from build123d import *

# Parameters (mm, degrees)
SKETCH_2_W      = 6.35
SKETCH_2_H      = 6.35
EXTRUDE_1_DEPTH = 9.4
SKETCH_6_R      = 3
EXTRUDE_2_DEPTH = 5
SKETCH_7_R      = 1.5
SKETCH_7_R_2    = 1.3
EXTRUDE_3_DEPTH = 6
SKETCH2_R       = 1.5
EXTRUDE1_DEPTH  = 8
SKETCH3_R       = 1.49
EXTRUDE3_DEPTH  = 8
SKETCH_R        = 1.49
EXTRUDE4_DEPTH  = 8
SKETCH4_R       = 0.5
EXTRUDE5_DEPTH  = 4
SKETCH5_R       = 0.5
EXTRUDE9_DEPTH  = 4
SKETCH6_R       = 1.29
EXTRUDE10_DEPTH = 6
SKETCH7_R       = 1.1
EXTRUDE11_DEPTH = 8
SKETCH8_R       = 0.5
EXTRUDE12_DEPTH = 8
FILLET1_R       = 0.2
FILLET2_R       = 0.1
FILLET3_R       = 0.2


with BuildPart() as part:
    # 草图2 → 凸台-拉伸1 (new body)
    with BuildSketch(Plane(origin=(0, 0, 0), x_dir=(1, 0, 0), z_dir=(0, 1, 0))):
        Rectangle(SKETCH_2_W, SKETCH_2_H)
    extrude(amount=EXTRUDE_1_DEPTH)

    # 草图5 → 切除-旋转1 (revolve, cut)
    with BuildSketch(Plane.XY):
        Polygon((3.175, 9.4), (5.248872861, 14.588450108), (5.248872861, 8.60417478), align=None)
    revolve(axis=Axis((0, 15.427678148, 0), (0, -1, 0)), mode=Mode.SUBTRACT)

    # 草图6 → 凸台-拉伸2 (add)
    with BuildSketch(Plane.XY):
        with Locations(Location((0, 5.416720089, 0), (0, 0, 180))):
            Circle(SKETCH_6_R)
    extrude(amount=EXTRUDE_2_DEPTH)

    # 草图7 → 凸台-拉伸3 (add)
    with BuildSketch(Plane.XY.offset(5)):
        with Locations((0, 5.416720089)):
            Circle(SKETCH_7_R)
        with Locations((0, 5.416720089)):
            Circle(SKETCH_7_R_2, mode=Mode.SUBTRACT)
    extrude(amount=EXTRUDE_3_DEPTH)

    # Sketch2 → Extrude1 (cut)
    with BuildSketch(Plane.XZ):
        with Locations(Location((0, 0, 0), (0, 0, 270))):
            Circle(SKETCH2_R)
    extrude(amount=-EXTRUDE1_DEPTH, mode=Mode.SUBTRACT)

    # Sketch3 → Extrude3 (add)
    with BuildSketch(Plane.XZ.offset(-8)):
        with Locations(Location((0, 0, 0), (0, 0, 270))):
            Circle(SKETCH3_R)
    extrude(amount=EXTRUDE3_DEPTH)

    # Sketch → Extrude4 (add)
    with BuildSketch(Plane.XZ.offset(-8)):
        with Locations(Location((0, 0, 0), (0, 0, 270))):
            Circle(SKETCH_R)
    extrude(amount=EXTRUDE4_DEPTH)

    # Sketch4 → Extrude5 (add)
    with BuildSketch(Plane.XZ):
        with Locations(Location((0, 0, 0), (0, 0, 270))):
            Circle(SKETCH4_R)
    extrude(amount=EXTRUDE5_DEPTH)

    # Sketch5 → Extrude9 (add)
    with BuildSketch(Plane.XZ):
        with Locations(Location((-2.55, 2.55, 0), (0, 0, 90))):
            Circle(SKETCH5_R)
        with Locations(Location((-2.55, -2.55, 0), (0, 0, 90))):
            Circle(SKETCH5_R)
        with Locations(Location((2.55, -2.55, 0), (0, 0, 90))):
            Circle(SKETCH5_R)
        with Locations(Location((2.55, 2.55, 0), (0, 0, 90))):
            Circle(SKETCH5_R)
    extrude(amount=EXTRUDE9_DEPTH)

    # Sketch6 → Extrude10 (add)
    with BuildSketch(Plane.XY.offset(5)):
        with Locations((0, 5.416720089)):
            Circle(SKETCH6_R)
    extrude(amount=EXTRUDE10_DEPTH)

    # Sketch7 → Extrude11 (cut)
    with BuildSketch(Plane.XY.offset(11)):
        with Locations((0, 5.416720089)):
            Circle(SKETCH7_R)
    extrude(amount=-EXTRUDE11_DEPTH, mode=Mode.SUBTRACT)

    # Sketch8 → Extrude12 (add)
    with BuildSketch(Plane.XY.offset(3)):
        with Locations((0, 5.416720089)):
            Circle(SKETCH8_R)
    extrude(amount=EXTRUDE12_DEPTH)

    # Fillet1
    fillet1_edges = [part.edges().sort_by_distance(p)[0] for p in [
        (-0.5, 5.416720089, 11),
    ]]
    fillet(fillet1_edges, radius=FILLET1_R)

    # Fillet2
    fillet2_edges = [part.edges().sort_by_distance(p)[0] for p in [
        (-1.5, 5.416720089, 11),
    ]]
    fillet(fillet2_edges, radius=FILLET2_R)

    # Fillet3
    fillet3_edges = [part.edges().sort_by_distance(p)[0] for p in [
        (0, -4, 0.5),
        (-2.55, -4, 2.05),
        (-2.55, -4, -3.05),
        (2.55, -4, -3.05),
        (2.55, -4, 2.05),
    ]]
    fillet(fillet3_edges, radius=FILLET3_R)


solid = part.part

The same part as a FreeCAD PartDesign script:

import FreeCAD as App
import Part
import Sketcher

V = App.Vector


def edges_at(feature, points):
    """Names of the edges that pass closest to the given points."""
    edges = feature.Shape.Edges
    near = lambda p: min(range(len(edges)), key=lambda i: edges[i].distToShape(Part.Vertex(*p))[0])
    return sorted({f"Edge{near(p) + 1}" for p in points})

doc = App.newDocument("Part")
body = doc.addObject("PartDesign::Body", "Body")

# Sketch on XZ plane
sketch1 = body.newObject("Sketcher::SketchObject", "Sketch")
sketch1.AttachmentSupport = (doc.getObject("XZ_Plane"), [""])
sketch1.MapMode = "FlatFace"
sketch1.addGeometry([
    Part.LineSegment(V(-3, -3, 0), V(-3, 3, 0)),
    Part.LineSegment(V(-3, 3, 0), V(3, 3, 0)),
    Part.LineSegment(V(3, 3, 0), V(3, -3, 0)),
    Part.LineSegment(V(3, -3, 0), V(-3, -3, 0)),
], False)
sketch1.addConstraint([
    Sketcher.Constraint("Coincident", 0, 2, 1, 1),
    Sketcher.Constraint("Coincident", 1, 2, 2, 1),
    Sketcher.Constraint("Coincident", 2, 2, 3, 1),
    Sketcher.Constraint("Coincident", 3, 2, 0, 1),
    Sketcher.Constraint("Vertical", 0),
    Sketcher.Constraint("Horizontal", 1),
    Sketcher.Constraint("Vertical", 2),
    Sketcher.Constraint("Horizontal", 3),
    Sketcher.Constraint("Symmetric", 0, 2, 2, 2, -1, 1),
    Sketcher.Constraint("Equal", 3, 0),
    Sketcher.Constraint("DistanceX", 1, 1, 1, 2, 6.35),
])
pad1 = body.newObject("PartDesign::Pad", "Pad")
pad1.Profile = sketch1
pad1.Length = 9.4
pad1.Reversed = True

# Sketch on XY plane
sketch2 = body.newObject("Sketcher::SketchObject", "Sketch001")
sketch2.AttachmentSupport = (doc.getObject("XY_Plane"), [""])
sketch2.MapMode = "FlatFace"
sketch2.addGeometry([
    Part.LineSegment(V(5.2, 14.6, 0), V(3.2, 9.4, 0)),
    Part.LineSegment(V(3.2, 9.4, 0), V(5.2, 8.6, 0)),
    Part.LineSegment(V(5.2, 8.6, 0), V(5.2, 14.6, 0)),
], False)
sketch2.addConstraint([
    Sketcher.Constraint("Coincident", 0, 2, 1, 1),
    Sketcher.Constraint("Coincident", 1, 2, 2, 1),
    Sketcher.Constraint("Coincident", 2, 2, 0, 1),
    Sketcher.Constraint("Vertical", 2),
    Sketcher.Constraint("DistanceY", -1, 1, 0, 2, 9.4),
    Sketcher.Constraint("DistanceX", -1, 1, 0, 2, 3.175),
    Sketcher.Constraint("DistanceY", 2, 1, 2, 2, 5.984275),
    Sketcher.Constraint("DistanceY", -1, 1, 2, 2, 14.58845),
    Sketcher.Constraint("Distance", 0, 5.587572),
])
groove = body.newObject("PartDesign::Groove", "Groove")
groove.Profile = sketch2
groove.ReferenceAxis = (sketch2, ["V_Axis"])
groove.Angle = 360

# Sketch on XY plane
sketch3 = body.newObject("Sketcher::SketchObject", "Sketch002")
sketch3.AttachmentSupport = (doc.getObject("XY_Plane"), [""])
sketch3.MapMode = "FlatFace"
sketch3.addGeometry(Part.Circle(V(0, 5.4, 0), V(0, 0, 1), 3), False)
sketch3.addConstraint([
    Sketcher.Constraint("PointOnObject", 0, 3, -2),
    Sketcher.Constraint("Diameter", 0, 6.0),
    Sketcher.Constraint("DistanceY", -1, 1, 0, 3, 5.41672),
])
pad2 = body.newObject("PartDesign::Pad", "Pad001")
pad2.Profile = sketch3
pad2.Length = 5

# Sketch on XY plane
sketch4 = body.newObject("Sketcher::SketchObject", "Sketch003")
sketch4.AttachmentSupport = (doc.getObject("XY_Plane"), [""])
sketch4.MapMode = "FlatFace"
sketch4.AttachmentOffset = App.Placement(V(0, 0, 5), App.Rotation())
sketch4.addGeometry([
    Part.Circle(V(0, 5.4, 0), V(0, 0, 1), 1.5),
    Part.Circle(V(0, 5.4, 0), V(0, 0, 1), 1.3),
], False)
sketch4.addConstraint([
    Sketcher.Constraint("Coincident", 1, 3, 0, 3),
    Sketcher.Constraint("PointOnObject", 0, 3, -2),
    Sketcher.Constraint("Diameter", 0, 3.0),
    Sketcher.Constraint("Diameter", 1, 2.6),
    Sketcher.Constraint("DistanceY", -1, 1, 0, 3, 5.41672),
])
pad3 = body.newObject("PartDesign::Pad", "Pad002")
pad3.Profile = sketch4
pad3.Length = 6

# Sketch on XZ plane
sketch5 = body.newObject("Sketcher::SketchObject", "Sketch004")
sketch5.AttachmentSupport = (doc.getObject("XZ_Plane"), [""])
sketch5.MapMode = "FlatFace"
sketch5.addGeometry(Part.Circle(V(0, 0, 0), V(0, 0, 1), 1.5), False)
sketch5.addConstraint([
    Sketcher.Constraint("Coincident", 0, 3, -1, 1),
    Sketcher.Constraint("Diameter", 0, 3.0),
])
pocket1 = body.newObject("PartDesign::Pocket", "Pocket")
pocket1.Profile = sketch5
pocket1.Length = 8

# Sketch on XZ plane
sketch6 = body.newObject("Sketcher::SketchObject", "Sketch005")
sketch6.AttachmentSupport = (doc.getObject("XZ_Plane"), [""])
sketch6.MapMode = "FlatFace"
sketch6.AttachmentOffset = App.Placement(V(0, 0, -8), App.Rotation())
sketch6.addGeometry(Part.Circle(V(0, 0, 0), V(0, 0, 1), 1.5), False)
sketch6.addConstraint([
    Sketcher.Constraint("Coincident", 0, 3, -1, 1),
    Sketcher.Constraint("Diameter", 0, 2.98),
])
pad4 = body.newObject("PartDesign::Pad", "Pad003")
pad4.Profile = sketch6
pad4.Length = 8

# Sketch on XZ plane
sketch7 = body.newObject("Sketcher::SketchObject", "Sketch006")
sketch7.AttachmentSupport = (doc.getObject("XZ_Plane"), [""])
sketch7.MapMode = "FlatFace"
sketch7.AttachmentOffset = App.Placement(V(0, 0, -8), App.Rotation())
sketch7.addGeometry(Part.Circle(V(0, 0, 0), V(0, 0, 1), 1.5), False)
sketch7.addConstraint([
    Sketcher.Constraint("Coincident", 0, 3, -1, 1),
    Sketcher.Constraint("Diameter", 0, 2.98),
])
pad5 = body.newObject("PartDesign::Pad", "Pad004")
pad5.Profile = sketch7
pad5.Length = 8

# Sketch on XZ plane
sketch8 = body.newObject("Sketcher::SketchObject", "Sketch007")
sketch8.AttachmentSupport = (doc.getObject("XZ_Plane"), [""])
sketch8.MapMode = "FlatFace"
sketch8.addGeometry(Part.Circle(V(0, 0, 0), V(0, 0, 1), 0.5), False)
sketch8.addConstraint([
    Sketcher.Constraint("Coincident", 0, 3, -1, 1),
    Sketcher.Constraint("Diameter", 0, 1.0),
])
pad6 = body.newObject("PartDesign::Pad", "Pad005")
pad6.Profile = sketch8
pad6.Length = 4

# Sketch on XZ plane
sketch9 = body.newObject("Sketcher::SketchObject", "Sketch008")
sketch9.AttachmentSupport = (doc.getObject("XZ_Plane"), [""])
sketch9.MapMode = "FlatFace"
sketch9.addGeometry([
    Part.Circle(V(-2.5, 2.5, 0), V(0, 0, 1), 0.5),
    Part.Circle(V(-2.5, -2.5, 0), V(0, 0, 1), 0.5),
    Part.Circle(V(2.5, -2.5, 0), V(0, 0, 1), 0.5),
    Part.Circle(V(2.5, 2.5, 0), V(0, 0, 1), 0.5),
], False)
sketch9.addConstraint([
    Sketcher.Constraint("Equal", 0, 1),
    Sketcher.Constraint("Equal", 1, 2),
    Sketcher.Constraint("Equal", 2, 3),
    Sketcher.Constraint("Symmetric", 0, 3, 2, 3, -1, 1),
    Sketcher.Constraint("Symmetric", 1, 3, 3, 3, -1, 1),
    Sketcher.Constraint("Symmetric", 1, 3, 2, 3, -2),
    Sketcher.Constraint("Diameter", 0, 1.0),
    Sketcher.Constraint("DistanceY", 1, 3, 0, 3, 5.1),
    Sketcher.Constraint("DistanceX", 1, 3, 2, 3, 5.1),
])
pad7 = body.newObject("PartDesign::Pad", "Pad006")
pad7.Profile = sketch9
pad7.Length = 4

# Sketch on XY plane
sketch10 = body.newObject("Sketcher::SketchObject", "Sketch009")
sketch10.AttachmentSupport = (doc.getObject("XY_Plane"), [""])
sketch10.MapMode = "FlatFace"
sketch10.AttachmentOffset = App.Placement(V(0, 0, 5), App.Rotation())
sketch10.addGeometry(Part.Circle(V(0, 5.4, 0), V(0, 0, 1), 1.3), False)
sketch10.addConstraint([
    Sketcher.Constraint("PointOnObject", 0, 3, -2),
    Sketcher.Constraint("Diameter", 0, 2.58),
    Sketcher.Constraint("DistanceY", -1, 1, 0, 3, 5.41672),
])
pad8 = body.newObject("PartDesign::Pad", "Pad007")
pad8.Profile = sketch10
pad8.Length = 6

# Sketch on XY plane
sketch11 = body.newObject("Sketcher::SketchObject", "Sketch010")
sketch11.AttachmentSupport = (doc.getObject("XY_Plane"), [""])
sketch11.MapMode = "FlatFace"
sketch11.AttachmentOffset = App.Placement(V(0, 0, 11), App.Rotation())
sketch11.addGeometry(Part.Circle(V(0, 5.4, 0), V(0, 0, 1), 1.1), False)
sketch11.addConstraint([
    Sketcher.Constraint("PointOnObject", 0, 3, -2),
    Sketcher.Constraint("Diameter", 0, 2.2),
    Sketcher.Constraint("DistanceY", -1, 1, 0, 3, 5.41672),
])
pocket2 = body.newObject("PartDesign::Pocket", "Pocket001")
pocket2.Profile = sketch11
pocket2.Length = 8

# Sketch on XY plane
sketch12 = body.newObject("Sketcher::SketchObject", "Sketch011")
sketch12.AttachmentSupport = (doc.getObject("XY_Plane"), [""])
sketch12.MapMode = "FlatFace"
sketch12.AttachmentOffset = App.Placement(V(0, 0, 3), App.Rotation())
sketch12.addGeometry(Part.Circle(V(0, 5.4, 0), V(0, 0, 1), 0.5), False)
sketch12.addConstraint([
    Sketcher.Constraint("PointOnObject", 0, 3, -2),
    Sketcher.Constraint("Diameter", 0, 1.0),
    Sketcher.Constraint("DistanceY", -1, 1, 0, 3, 5.41672),
])
pad9 = body.newObject("PartDesign::Pad", "Pad008")
pad9.Profile = sketch12
pad9.Length = 8
doc.recompute()

fillet = body.newObject("PartDesign::Fillet", "Fillet")
fillet.Base = (pad9, edges_at(pad9, [(-0.5, 5.417, 11)]))
fillet.Radius = 0.2
doc.recompute()

fillet2 = body.newObject("PartDesign::Fillet", "Fillet001")
fillet2.Base = (fillet, edges_at(fillet, [(-1.5, 5.417, 11)]))
fillet2.Radius = 0.1
doc.recompute()

fillet3 = body.newObject("PartDesign::Fillet", "Fillet002")
fillet3.Base = (fillet2, edges_at(fillet2, [
    (0, -4, 0.5),
    (-2.55, -4, 2.05),
    (-2.55, -4, -3.05),
    (2.55, -4, -3.05),
    (2.55, -4, 2.05),
]))
fillet3.Radius = 0.2

doc.recompute()
